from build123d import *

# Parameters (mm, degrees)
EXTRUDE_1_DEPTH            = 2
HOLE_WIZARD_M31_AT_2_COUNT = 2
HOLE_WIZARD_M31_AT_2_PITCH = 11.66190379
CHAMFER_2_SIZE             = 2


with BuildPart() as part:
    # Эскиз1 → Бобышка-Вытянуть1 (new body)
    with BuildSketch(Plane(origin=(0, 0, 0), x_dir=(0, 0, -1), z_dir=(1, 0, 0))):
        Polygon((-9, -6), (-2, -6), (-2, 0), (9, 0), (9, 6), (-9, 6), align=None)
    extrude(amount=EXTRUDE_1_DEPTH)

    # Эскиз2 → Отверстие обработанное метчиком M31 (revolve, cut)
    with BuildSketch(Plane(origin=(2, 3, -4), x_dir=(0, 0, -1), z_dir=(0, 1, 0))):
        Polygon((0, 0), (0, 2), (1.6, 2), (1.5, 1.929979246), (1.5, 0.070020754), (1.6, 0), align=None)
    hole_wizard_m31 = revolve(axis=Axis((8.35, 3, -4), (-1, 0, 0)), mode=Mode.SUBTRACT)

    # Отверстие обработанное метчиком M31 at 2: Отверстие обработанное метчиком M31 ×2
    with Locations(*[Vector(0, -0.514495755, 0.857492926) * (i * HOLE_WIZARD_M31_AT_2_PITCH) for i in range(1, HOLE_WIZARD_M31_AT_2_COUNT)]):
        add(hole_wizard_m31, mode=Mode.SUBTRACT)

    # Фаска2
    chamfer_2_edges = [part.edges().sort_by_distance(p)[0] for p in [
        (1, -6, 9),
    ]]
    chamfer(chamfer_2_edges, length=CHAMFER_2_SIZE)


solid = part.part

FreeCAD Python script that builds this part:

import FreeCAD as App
import Part
import Sketcher
from FreeCAD import Vector
Q = App.Units.Quantity


def edges_at(feature, points):
    """Names of the edges that pass closest to the given points."""
    edges = feature.Shape.Edges
    near = lambda p: min(range(len(edges)), key=lambda i: edges[i].distToShape(Part.Vertex(*p))[0])
    return sorted({f"Edge{near(p) + 1}" for p in points})


def add_polygon(sketch, points):
    """Adds a closed chain of lines whose ends are joined by coincident constraints."""
    first, n = sketch.GeometryCount, len(points)
    for a, b in zip(points, points[1:] + points[:1]):
        sketch.addGeometry(Part.LineSegment(App.Vector(*a, 0), App.Vector(*b, 0)), False)
    for i in range(n):
        sketch.addConstraint(Sketcher.Constraint("Coincident", first + i, 2, first + (i + 1) % n, 1))

doc = App.newDocument("Part")
body = doc.addObject("PartDesign::Body", "Body")

# Sketch on YZ plane
sketch1 = body.newObject("Sketcher::SketchObject", "Sketch")
sketch1.AttachmentSupport = (doc.getObject("YZ_Plane"), [""])
sketch1.MapMode = "FlatFace"
add_polygon(sketch1, [(-6, 9), (-6, 2), (0, 2), (0, -9), (6, -9), (6, 9)])  # lines 0-5
sketch1.addConstraint(Sketcher.Constraint("Vertical", 0))
sketch1.addConstraint(Sketcher.Constraint("Horizontal", 1))
sketch1.addConstraint(Sketcher.Constraint("Vertical", 2))
sketch1.addConstraint(Sketcher.Constraint("Horizontal", 3))
sketch1.addConstraint(Sketcher.Constraint("Vertical", 4))
sketch1.addConstraint(Sketcher.Constraint("Horizontal", 5))
sketch1.addConstraint(Sketcher.Constraint("Symmetric", 3, 2, 5, 2, -1, 1))
sketch1.addConstraint(Sketcher.Constraint("PointOnObject", 1, 2, -2))
sketch1.addConstraint(Sketcher.Constraint("DistanceX", 1, 1, 1, 2, Q("6 mm")))
sketch1.addConstraint(Sketcher.Constraint("DistanceY", 0, 2, 0, 1, Q("7 mm")))
sketch1.addConstraint(Sketcher.Constraint("DistanceY", 2, 2, 2, 1, Q("11 mm")))
pad1 = body.newObject("PartDesign::Pad", "Pad")
pad1.Profile = sketch1
pad1.Length = 2

# Sketch on XZ plane
sketch2 = body.newObject("Sketcher::SketchObject", "Sketch001")
sketch2.AttachmentSupport = (doc.getObject("XZ_Plane"), [""])
sketch2.MapMode = "FlatFace"
sketch2.AttachmentOffset = App.Placement(Vector(0, 0, -3), App.Rotation())
add_polygon(sketch2, [(0, -4), (2, -4), (2, -5.6), (1.93, -5.5), (0.07, -5.5), (0, -5.6)])  # lines 0-5
sketch2.addGeometry(Part.LineSegment(Vector(2, -4, 0), Vector(0, -4, 0)), True)  # axis
sketch2.addConstraint(Sketcher.Constraint("Horizontal", 0))
sketch2.addConstraint(Sketcher.Constraint("Vertical", 1))
sketch2.addConstraint(Sketcher.Constraint("Horizontal", 3))
sketch2.addConstraint(Sketcher.Constraint("Vertical", 5))
sketch2.addConstraint(Sketcher.Constraint("Horizontal", 6))
sketch2.addConstraint(Sketcher.Constraint("Coincident", 6, 1, 0, 2))
sketch2.addConstraint(Sketcher.Constraint("PointOnObject", 4, 2, -2))
sketch2.addConstraint(Sketcher.Constraint("PointOnObject", 6, 2, -2))
sketch2.addConstraint(Sketcher.Constraint("Horizontal", 1, 2, 4, 2))
sketch2.addConstraint(Sketcher.Constraint("Equal", 2, 4))
sketch2.addConstraint(Sketcher.Constraint("DistanceX", 0, 1, 0, 2, Q("2 mm")))
sketch2.addConstraint(Sketcher.Constraint("Angle", 2, Q("125 deg")))
sketch2.addConstraint(Sketcher.Constraint("DistanceY", 1, 2, 1, 1, Q("1.6 mm")))
sketch2.addConstraint(Sketcher.Constraint("DistanceY", 0, 2, -1, 1, Q("4 mm")))
sketch2.addConstraint(Sketcher.Constraint("DistanceY", 2, 2, -1, 1, Q("5.5 mm")))
groove = body.newObject("PartDesign::Groove", "Groove")
groove.Profile = sketch2
groove.ReferenceAxis = (sketch2, ["Axis0"])
groove.Angle = 360
doc.recompute()

datumline = body.newObject("PartDesign::Line", "DatumLine")
datumline.Placement = App.Placement(Vector(0, 0, 0), App.Rotation(Vector(0, 0, 1), Vector(0, -0.514495755, 0.857492926)))
linearpattern = body.newObject("PartDesign::LinearPattern", "LinearPattern")
linearpattern.Originals = [groove]
linearpattern.Direction = (datumline, [""])
linearpattern.Mode = "offset"
linearpattern.Offset = 11.661904
linearpattern.Occurrences = 2
body.Tip = linearpattern
doc.recompute()

chamfer = body.newObject("PartDesign::Chamfer", "Chamfer")
chamfer.Base = (linearpattern, edges_at(linearpattern, [(1, -6, 9)]))
chamfer.Size = 2

doc.recompute()
